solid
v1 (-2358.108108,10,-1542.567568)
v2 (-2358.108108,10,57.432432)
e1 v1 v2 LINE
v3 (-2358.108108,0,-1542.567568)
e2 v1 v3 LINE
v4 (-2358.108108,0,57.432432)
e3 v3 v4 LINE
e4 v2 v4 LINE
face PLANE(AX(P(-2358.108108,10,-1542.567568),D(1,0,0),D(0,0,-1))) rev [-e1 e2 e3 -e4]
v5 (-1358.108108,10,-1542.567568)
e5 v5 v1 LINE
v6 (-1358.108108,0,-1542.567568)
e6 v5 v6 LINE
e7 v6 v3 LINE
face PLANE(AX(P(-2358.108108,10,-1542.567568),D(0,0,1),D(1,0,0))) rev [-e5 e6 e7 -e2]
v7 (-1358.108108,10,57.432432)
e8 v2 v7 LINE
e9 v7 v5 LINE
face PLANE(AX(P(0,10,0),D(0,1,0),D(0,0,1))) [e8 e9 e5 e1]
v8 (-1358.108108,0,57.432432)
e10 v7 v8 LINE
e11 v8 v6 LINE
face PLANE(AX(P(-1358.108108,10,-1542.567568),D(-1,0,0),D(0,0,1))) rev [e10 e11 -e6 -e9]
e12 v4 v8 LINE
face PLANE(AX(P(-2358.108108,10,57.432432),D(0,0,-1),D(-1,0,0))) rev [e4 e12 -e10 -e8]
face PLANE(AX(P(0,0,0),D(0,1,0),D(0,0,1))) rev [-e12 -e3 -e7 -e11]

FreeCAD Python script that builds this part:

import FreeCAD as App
import Part
import Sketcher

V = App.Vector
Q = App.Units.Quantity


def add_polygon(sketch, points):
    """Adds a closed chain of lines whose ends are joined by coincident constraints."""
    first, n = sketch.GeometryCount, len(points)
    for a, b in zip(points, points[1:] + points[:1]):
        sketch.addGeometry(Part.LineSegment(App.Vector(*a, 0), App.Vector(*b, 0)), False)
    for i in range(n):
        sketch.addConstraint(Sketcher.Constraint("Coincident", first + i, 2, first + (i + 1) % n, 1))

doc = App.newDocument("Part")
body = doc.addObject("PartDesign::Body", "Body")

sketch1 = body.newObject("Sketcher::SketchObject", "Sketch")
sketch1.AttachmentSupport = (doc.getObject("XZ_Plane"), [""])
sketch1.MapMode = "FlatFace"
add_polygon(sketch1, [(-2358.108108, -1542.567568), (-2358.108108, 57.432432), (-1358.108108, 57.432432), (-1358.108108, -1542.567568)])
sketch1.addConstraint(Sketcher.Constraint("Vertical", 0))
sketch1.addConstraint(Sketcher.Constraint("Horizontal", 1))
sketch1.addConstraint(Sketcher.Constraint("Vertical", 2))
sketch1.addConstraint(Sketcher.Constraint("Horizontal", 3))
sketch1.addConstraint(Sketcher.Constraint("DistanceX", 1, 1, 1, 2, Q("1000 mm")))
sketch1.addConstraint(Sketcher.Constraint("DistanceY", 0, 1, 0, 2, Q("1600 mm")))
sketch1.addConstraint(Sketcher.Constraint("DistanceX", 0, 2, -1, 1, Q("2358.108108 mm")))
sketch1.addConstraint(Sketcher.Constraint("DistanceY", -1, 1, 0, 2, Q("57.432432 mm")))
pad1 = body.newObject("PartDesign::Pad", "Pad")
pad1.Profile = sketch1
pad1.Length = 10
pad1.Reversed = True

doc.recompute()
